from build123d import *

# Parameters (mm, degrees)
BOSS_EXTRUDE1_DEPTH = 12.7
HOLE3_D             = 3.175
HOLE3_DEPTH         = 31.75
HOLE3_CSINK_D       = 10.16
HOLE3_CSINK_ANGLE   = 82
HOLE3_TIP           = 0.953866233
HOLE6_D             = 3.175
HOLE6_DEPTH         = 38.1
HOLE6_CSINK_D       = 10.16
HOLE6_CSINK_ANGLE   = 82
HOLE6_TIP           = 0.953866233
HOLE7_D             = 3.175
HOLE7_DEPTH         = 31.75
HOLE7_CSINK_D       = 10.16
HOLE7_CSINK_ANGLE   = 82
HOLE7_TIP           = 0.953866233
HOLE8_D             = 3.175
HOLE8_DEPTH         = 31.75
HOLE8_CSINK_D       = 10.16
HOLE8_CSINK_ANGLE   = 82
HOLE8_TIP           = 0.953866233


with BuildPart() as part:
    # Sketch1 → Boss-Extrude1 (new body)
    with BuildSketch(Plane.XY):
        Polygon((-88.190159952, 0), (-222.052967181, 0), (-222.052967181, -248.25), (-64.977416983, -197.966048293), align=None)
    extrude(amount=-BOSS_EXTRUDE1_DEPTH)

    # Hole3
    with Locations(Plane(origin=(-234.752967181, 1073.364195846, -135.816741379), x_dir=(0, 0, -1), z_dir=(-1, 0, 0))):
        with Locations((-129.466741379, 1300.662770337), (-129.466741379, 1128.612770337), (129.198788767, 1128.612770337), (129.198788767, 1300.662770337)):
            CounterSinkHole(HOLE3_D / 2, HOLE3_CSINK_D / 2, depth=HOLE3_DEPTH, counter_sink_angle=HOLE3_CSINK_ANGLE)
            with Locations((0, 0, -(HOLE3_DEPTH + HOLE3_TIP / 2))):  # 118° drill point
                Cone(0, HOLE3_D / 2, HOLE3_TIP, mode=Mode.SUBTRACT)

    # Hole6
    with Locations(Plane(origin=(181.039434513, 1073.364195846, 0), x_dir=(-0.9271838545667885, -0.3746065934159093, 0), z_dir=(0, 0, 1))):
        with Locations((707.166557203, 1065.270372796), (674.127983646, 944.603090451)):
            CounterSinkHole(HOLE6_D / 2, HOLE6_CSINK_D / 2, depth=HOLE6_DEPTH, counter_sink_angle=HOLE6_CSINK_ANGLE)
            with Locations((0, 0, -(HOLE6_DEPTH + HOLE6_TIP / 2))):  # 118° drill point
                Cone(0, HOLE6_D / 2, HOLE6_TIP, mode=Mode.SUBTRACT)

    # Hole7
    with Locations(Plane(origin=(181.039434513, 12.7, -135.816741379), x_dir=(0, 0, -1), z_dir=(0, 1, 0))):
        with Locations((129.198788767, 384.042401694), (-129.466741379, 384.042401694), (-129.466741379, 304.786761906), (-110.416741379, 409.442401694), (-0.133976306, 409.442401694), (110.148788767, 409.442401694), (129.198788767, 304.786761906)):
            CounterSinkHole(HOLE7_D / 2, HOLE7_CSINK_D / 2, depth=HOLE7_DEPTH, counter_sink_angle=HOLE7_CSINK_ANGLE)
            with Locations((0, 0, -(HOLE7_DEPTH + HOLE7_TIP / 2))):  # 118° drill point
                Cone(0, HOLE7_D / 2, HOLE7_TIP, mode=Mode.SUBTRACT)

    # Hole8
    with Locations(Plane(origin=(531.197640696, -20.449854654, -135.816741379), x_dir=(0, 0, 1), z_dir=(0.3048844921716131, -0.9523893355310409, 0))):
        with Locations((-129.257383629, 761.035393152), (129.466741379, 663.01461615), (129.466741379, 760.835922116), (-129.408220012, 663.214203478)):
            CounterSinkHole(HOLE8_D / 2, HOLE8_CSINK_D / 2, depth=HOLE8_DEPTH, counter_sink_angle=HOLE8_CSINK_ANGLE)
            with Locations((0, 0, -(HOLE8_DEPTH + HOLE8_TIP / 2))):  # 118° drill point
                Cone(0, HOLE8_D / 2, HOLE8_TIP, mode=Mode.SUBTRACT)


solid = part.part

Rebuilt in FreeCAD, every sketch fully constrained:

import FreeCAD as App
import Part
import Sketcher

V = App.Vector
Q = App.Units.Quantity


def add_polygon(sketch, points):
    """Adds a closed chain of lines whose ends are joined by coincident constraints."""
    first, n = sketch.GeometryCount, len(points)
    for a, b in zip(points, points[1:] + points[:1]):
        sketch.addGeometry(Part.LineSegment(App.Vector(*a, 0), App.Vector(*b, 0)), False)
    for i in range(n):
        sketch.addConstraint(Sketcher.Constraint("Coincident", first + i, 2, first + (i + 1) % n, 1))

doc = App.newDocument("Part")
body = doc.addObject("PartDesign::Body", "Body")

# Sketch on XY plane
sketch1 = body.newObject("Sketcher::SketchObject", "Sketch")
sketch1.AttachmentSupport = (doc.getObject("XY_Plane"), [""])
sketch1.MapMode = "FlatFace"
add_polygon(sketch1, [(-88, 0), (-222, 0), (-222, -248), (-65, -198)])  # lines 0-3
sketch1.addConstraint([
    Sketcher.Constraint("Horizontal", 0),
    Sketcher.Constraint("Vertical", 1),
    Sketcher.Constraint("PointOnObject", 0, 2, -1),
    Sketcher.Constraint("DistanceY", 1, 2, 1, 1, 248.25),
    Sketcher.Constraint("Distance", 3, 199.322321),
    Sketcher.Constraint("DistanceX", 0, 2, 0, 1, 133.862807),
    Sketcher.Constraint("DistanceY", 2, 2, -1, 1, 197.966048),
    Sketcher.Constraint("DistanceX", 3, 2, -1, 1, 88.19016),
])
pad1 = body.newObject("PartDesign::Pad", "Pad")
pad1.Profile = sketch1
pad1.Length = Q("0.5 in")
pad1.Reversed = True

# Sketch on YZ plane
sketch2 = body.newObject("Sketcher::SketchObject", "Sketch001")
sketch2.AttachmentSupport = (doc.getObject("YZ_Plane"), [""])
sketch2.MapMode = "FlatFace"
sketch2.AttachmentOffset = App.Placement(V(0, 0, -234.752967), App.Rotation())
sketch2.addGeometry([
    Part.Circle(V(-227.3, -6.3, 0), V(0, 0, 1), 1.6),
    Part.Circle(V(-55.2, -6.3, 0), V(0, 0, 1), 1.6),
    Part.Circle(V(-55.2, -265, 0), V(0, 0, 1), 1.6),
    Part.Circle(V(-227.3, -265, 0), V(0, 0, 1), 1.6),
], False)
sketch2.addConstraint([
    Sketcher.Constraint("Equal", 0, 1),
    Sketcher.Constraint("Equal", 1, 2),
    Sketcher.Constraint("Equal", 2, 3),
    Sketcher.Constraint("Horizontal", 0, 3, 1, 3),
    Sketcher.Constraint("Horizontal", 2, 3, 3, 3),
    Sketcher.Constraint("Vertical", 1, 3, 2, 3),
    Sketcher.Constraint("Vertical", 0, 3, 3, 3),
    Sketcher.Constraint("Diameter", 0, Q("0.125 in")),
    Sketcher.Constraint("DistanceY", 0, 3, -1, 1, Q("0.25 in")),
    Sketcher.Constraint("DistanceX", 0, 3, 1, 3, 172.05),
    Sketcher.Constraint("DistanceY", 2, 3, -1, 1, 265.01553),
    Sketcher.Constraint("DistanceX", 0, 3, -1, 1, 227.298574),
])
doc.recompute()
hole = body.newObject("PartDesign::Hole", "Hole")
hole.Profile = sketch2
hole.ThreadType = "None"
hole.Diameter = Q("0.125 in")
hole.DepthType = "Dimension"
hole.Depth = Q("1.25 in")
hole.DrillPoint = "Angled"
hole.DrillPointAngle = 118
hole.HoleCutType = "Countersink"
hole.HoleCutDiameter = Q("0.4 in")
hole.HoleCutCountersinkAngle = 82
hole.Reversed = True

# Sketch on XY plane
sketch3 = body.newObject("Sketcher::SketchObject", "Sketch002")
sketch3.AttachmentSupport = (doc.getObject("XY_Plane"), [""])
sketch3.MapMode = "FlatFace"
sketch3.addGeometry([
    Part.Circle(V(-75.6, -179.2, 0), V(0, 0, 1), 1.6),
    Part.Circle(V(-90.1, -55, 0), V(0, 0, 1), 1.6),
], False)
sketch3.addConstraint([
    Sketcher.Constraint("Equal", 0, 1),
    Sketcher.Constraint("Diameter", 0, Q("0.125 in")),
    Sketcher.Constraint("DistanceY", 0, 3, -1, 1, 179.24655),
    Sketcher.Constraint("DistanceX", 0, 3, -1, 1, 75.576675),
    Sketcher.Constraint("DistanceX", 1, 3, -1, 1, 90.146602),
    Sketcher.Constraint("DistanceY", 1, 3, -1, 1, 54.989326),
])
doc.recompute()
hole2 = body.newObject("PartDesign::Hole", "Hole001")
hole2.Profile = sketch3
hole2.ThreadType = "None"
hole2.Diameter = Q("0.125 in")
hole2.DepthType = "Dimension"
hole2.Depth = Q("1.5 in")
hole2.DrillPoint = "Angled"
hole2.DrillPointAngle = 118
hole2.HoleCutType = "Countersink"
hole2.HoleCutDiameter = Q("0.4 in")
hole2.HoleCutCountersinkAngle = 82

# Sketch on XZ plane
sketch4 = body.newObject("Sketcher::SketchObject", "Sketch003")
sketch4.AttachmentSupport = (doc.getObject("XZ_Plane"), [""])
sketch4.MapMode = "FlatFace"
sketch4.AttachmentOffset = App.Placement(V(0, 0, -0.5 * 25.4), App.Rotation())
sketch4.addGeometry([
    Part.Circle(V(-203, -265, 0), V(0, 0, 1), 1.6),  # 0
    Part.Circle(V(-203, -6.3, 0), V(0, 0, 1), 1.6),  # 1
    Part.Circle(V(-123.7, -6.3, 0), V(0, 0, 1), 1.6),  # 2
    Part.Circle(V(-228.4, -25.4, 0), V(0, 0, 1), 1.6),  # 3
    Part.Circle(V(-228.4, -135.7, 0), V(0, 0, 1), 1.6),  # 4
    Part.Circle(V(-228.4, -246, 0), V(0, 0, 1), 1.6),  # 5
    Part.Circle(V(-123.7, -265, 0), V(0, 0, 1), 1.6),  # 6
], False)
sketch4.addConstraint([
    Sketcher.Constraint("Equal", 0, 1),
    Sketcher.Constraint("Equal", 1, 2),
    Sketcher.Constraint("Equal", 2, 3),
    Sketcher.Constraint("Equal", 3, 4),
    Sketcher.Constraint("Equal", 4, 5),
    Sketcher.Constraint("Equal", 5, 6),
    Sketcher.Constraint("Horizontal", 1, 3, 2, 3),
    Sketcher.Constraint("Horizontal", 0, 3, 6, 3),
    Sketcher.Constraint("Vertical", 0, 3, 1, 3),
    Sketcher.Constraint("Vertical", 3, 3, 4, 3),
    Sketcher.Constraint("Vertical", 4, 3, 5, 3),
    Sketcher.Constraint("Vertical", 2, 3, 6, 3),
    Sketcher.Constraint("Diameter", 0, Q("0.125 in")),
    Sketcher.Constraint("DistanceY", 3, 3, -1, 1, Q("1 in")),
    Sketcher.Constraint("DistanceX", 3, 3, 1, 3, Q("1 in")),
    Sketcher.Constraint("DistanceY", 1, 3, -1, 1, Q("0.25 in")),
    Sketcher.Constraint("DistanceY", 0, 3, 5, 3, Q("0.75 in")),
    Sketcher.Constraint("DistanceY", 0, 3, -1, 1, 265.01553),
    Sketcher.Constraint("DistanceX", 1, 3, 2, 3, 79.25564),
    Sketcher.Constraint("DistanceX", 0, 3, -1, 1, 203.002967),
    Sketcher.Constraint("DistanceY", 4, 3, -1, 1, 135.682765),
])
doc.recompute()
hole3 = body.newObject("PartDesign::Hole", "Hole002")
hole3.Profile = sketch4
hole3.ThreadType = "None"
hole3.Diameter = Q("0.125 in")
hole3.DepthType = "Dimension"
hole3.Depth = Q("1.25 in")
hole3.DrillPoint = "Angled"
hole3.DrillPointAngle = 118
hole3.HoleCutType = "Countersink"
hole3.HoleCutDiameter = Q("0.4 in")
hole3.HoleCutCountersinkAngle = 82
hole3.Reversed = True

# Sketch on an angled plane
sketch5 = body.newObject("Sketcher::SketchObject", "Sketch004")
sketch5.Placement = App.Placement(V(55.315238, -172.792137, 0), App.Rotation(V(0, 0, 1), V(-0.952389336, -0.304884492, 0), V(0.304884492, -0.952389336, 0), "ZXY"))
sketch5.addGeometry([
    Part.Circle(V(-265.1, 261.4, 0), V(0, 0, 1), 1.6),
    Part.Circle(V(-6.3, 163.3, 0), V(0, 0, 1), 1.6),
    Part.Circle(V(-6.3, 261.2, 0), V(0, 0, 1), 1.6),
    Part.Circle(V(-265.2, 163.5, 0), V(0, 0, 1), 1.6),
], False)
sketch5.addConstraint([
    Sketcher.Constraint("Equal", 0, 1),
    Sketcher.Constraint("Equal", 1, 2),
    Sketcher.Constraint("Equal", 2, 3),
    Sketcher.Constraint("Vertical", 1, 3, 2, 3),
    Sketcher.Constraint("Diameter", 0, Q("0.125 in")),
    Sketcher.Constraint("DistanceX", 1, 3, -1, 1, Q("0.25 in")),
    Sketcher.Constraint("DistanceY", -1, 1, 0, 3, 261.363269),
    Sketcher.Constraint("DistanceY", -1, 1, 1, 3, 163.342492),
    Sketcher.Constraint("DistanceX", 3, 3, -1, 1, 265.224961),
    Sketcher.Constraint("DistanceY", -1, 1, 3, 3, 163.542079),
    Sketcher.Constraint("DistanceY", 2, 3, 0, 3, 0.199471),
    Sketcher.Constraint("DistanceX", 0, 3, -1, 1, 265.074125),
])
doc.recompute()
hole4 = body.newObject("PartDesign::Hole", "Hole003")
hole4.Profile = sketch5
hole4.ThreadType = "None"
hole4.Diameter = Q("0.125 in")
hole4.DepthType = "Dimension"
hole4.Depth = Q("1.25 in")
hole4.DrillPoint = "Angled"
hole4.DrillPointAngle = 118
hole4.HoleCutType = "Countersink"
hole4.HoleCutDiameter = Q("0.4 in")
hole4.HoleCutCountersinkAngle = 82

doc.recompute()
